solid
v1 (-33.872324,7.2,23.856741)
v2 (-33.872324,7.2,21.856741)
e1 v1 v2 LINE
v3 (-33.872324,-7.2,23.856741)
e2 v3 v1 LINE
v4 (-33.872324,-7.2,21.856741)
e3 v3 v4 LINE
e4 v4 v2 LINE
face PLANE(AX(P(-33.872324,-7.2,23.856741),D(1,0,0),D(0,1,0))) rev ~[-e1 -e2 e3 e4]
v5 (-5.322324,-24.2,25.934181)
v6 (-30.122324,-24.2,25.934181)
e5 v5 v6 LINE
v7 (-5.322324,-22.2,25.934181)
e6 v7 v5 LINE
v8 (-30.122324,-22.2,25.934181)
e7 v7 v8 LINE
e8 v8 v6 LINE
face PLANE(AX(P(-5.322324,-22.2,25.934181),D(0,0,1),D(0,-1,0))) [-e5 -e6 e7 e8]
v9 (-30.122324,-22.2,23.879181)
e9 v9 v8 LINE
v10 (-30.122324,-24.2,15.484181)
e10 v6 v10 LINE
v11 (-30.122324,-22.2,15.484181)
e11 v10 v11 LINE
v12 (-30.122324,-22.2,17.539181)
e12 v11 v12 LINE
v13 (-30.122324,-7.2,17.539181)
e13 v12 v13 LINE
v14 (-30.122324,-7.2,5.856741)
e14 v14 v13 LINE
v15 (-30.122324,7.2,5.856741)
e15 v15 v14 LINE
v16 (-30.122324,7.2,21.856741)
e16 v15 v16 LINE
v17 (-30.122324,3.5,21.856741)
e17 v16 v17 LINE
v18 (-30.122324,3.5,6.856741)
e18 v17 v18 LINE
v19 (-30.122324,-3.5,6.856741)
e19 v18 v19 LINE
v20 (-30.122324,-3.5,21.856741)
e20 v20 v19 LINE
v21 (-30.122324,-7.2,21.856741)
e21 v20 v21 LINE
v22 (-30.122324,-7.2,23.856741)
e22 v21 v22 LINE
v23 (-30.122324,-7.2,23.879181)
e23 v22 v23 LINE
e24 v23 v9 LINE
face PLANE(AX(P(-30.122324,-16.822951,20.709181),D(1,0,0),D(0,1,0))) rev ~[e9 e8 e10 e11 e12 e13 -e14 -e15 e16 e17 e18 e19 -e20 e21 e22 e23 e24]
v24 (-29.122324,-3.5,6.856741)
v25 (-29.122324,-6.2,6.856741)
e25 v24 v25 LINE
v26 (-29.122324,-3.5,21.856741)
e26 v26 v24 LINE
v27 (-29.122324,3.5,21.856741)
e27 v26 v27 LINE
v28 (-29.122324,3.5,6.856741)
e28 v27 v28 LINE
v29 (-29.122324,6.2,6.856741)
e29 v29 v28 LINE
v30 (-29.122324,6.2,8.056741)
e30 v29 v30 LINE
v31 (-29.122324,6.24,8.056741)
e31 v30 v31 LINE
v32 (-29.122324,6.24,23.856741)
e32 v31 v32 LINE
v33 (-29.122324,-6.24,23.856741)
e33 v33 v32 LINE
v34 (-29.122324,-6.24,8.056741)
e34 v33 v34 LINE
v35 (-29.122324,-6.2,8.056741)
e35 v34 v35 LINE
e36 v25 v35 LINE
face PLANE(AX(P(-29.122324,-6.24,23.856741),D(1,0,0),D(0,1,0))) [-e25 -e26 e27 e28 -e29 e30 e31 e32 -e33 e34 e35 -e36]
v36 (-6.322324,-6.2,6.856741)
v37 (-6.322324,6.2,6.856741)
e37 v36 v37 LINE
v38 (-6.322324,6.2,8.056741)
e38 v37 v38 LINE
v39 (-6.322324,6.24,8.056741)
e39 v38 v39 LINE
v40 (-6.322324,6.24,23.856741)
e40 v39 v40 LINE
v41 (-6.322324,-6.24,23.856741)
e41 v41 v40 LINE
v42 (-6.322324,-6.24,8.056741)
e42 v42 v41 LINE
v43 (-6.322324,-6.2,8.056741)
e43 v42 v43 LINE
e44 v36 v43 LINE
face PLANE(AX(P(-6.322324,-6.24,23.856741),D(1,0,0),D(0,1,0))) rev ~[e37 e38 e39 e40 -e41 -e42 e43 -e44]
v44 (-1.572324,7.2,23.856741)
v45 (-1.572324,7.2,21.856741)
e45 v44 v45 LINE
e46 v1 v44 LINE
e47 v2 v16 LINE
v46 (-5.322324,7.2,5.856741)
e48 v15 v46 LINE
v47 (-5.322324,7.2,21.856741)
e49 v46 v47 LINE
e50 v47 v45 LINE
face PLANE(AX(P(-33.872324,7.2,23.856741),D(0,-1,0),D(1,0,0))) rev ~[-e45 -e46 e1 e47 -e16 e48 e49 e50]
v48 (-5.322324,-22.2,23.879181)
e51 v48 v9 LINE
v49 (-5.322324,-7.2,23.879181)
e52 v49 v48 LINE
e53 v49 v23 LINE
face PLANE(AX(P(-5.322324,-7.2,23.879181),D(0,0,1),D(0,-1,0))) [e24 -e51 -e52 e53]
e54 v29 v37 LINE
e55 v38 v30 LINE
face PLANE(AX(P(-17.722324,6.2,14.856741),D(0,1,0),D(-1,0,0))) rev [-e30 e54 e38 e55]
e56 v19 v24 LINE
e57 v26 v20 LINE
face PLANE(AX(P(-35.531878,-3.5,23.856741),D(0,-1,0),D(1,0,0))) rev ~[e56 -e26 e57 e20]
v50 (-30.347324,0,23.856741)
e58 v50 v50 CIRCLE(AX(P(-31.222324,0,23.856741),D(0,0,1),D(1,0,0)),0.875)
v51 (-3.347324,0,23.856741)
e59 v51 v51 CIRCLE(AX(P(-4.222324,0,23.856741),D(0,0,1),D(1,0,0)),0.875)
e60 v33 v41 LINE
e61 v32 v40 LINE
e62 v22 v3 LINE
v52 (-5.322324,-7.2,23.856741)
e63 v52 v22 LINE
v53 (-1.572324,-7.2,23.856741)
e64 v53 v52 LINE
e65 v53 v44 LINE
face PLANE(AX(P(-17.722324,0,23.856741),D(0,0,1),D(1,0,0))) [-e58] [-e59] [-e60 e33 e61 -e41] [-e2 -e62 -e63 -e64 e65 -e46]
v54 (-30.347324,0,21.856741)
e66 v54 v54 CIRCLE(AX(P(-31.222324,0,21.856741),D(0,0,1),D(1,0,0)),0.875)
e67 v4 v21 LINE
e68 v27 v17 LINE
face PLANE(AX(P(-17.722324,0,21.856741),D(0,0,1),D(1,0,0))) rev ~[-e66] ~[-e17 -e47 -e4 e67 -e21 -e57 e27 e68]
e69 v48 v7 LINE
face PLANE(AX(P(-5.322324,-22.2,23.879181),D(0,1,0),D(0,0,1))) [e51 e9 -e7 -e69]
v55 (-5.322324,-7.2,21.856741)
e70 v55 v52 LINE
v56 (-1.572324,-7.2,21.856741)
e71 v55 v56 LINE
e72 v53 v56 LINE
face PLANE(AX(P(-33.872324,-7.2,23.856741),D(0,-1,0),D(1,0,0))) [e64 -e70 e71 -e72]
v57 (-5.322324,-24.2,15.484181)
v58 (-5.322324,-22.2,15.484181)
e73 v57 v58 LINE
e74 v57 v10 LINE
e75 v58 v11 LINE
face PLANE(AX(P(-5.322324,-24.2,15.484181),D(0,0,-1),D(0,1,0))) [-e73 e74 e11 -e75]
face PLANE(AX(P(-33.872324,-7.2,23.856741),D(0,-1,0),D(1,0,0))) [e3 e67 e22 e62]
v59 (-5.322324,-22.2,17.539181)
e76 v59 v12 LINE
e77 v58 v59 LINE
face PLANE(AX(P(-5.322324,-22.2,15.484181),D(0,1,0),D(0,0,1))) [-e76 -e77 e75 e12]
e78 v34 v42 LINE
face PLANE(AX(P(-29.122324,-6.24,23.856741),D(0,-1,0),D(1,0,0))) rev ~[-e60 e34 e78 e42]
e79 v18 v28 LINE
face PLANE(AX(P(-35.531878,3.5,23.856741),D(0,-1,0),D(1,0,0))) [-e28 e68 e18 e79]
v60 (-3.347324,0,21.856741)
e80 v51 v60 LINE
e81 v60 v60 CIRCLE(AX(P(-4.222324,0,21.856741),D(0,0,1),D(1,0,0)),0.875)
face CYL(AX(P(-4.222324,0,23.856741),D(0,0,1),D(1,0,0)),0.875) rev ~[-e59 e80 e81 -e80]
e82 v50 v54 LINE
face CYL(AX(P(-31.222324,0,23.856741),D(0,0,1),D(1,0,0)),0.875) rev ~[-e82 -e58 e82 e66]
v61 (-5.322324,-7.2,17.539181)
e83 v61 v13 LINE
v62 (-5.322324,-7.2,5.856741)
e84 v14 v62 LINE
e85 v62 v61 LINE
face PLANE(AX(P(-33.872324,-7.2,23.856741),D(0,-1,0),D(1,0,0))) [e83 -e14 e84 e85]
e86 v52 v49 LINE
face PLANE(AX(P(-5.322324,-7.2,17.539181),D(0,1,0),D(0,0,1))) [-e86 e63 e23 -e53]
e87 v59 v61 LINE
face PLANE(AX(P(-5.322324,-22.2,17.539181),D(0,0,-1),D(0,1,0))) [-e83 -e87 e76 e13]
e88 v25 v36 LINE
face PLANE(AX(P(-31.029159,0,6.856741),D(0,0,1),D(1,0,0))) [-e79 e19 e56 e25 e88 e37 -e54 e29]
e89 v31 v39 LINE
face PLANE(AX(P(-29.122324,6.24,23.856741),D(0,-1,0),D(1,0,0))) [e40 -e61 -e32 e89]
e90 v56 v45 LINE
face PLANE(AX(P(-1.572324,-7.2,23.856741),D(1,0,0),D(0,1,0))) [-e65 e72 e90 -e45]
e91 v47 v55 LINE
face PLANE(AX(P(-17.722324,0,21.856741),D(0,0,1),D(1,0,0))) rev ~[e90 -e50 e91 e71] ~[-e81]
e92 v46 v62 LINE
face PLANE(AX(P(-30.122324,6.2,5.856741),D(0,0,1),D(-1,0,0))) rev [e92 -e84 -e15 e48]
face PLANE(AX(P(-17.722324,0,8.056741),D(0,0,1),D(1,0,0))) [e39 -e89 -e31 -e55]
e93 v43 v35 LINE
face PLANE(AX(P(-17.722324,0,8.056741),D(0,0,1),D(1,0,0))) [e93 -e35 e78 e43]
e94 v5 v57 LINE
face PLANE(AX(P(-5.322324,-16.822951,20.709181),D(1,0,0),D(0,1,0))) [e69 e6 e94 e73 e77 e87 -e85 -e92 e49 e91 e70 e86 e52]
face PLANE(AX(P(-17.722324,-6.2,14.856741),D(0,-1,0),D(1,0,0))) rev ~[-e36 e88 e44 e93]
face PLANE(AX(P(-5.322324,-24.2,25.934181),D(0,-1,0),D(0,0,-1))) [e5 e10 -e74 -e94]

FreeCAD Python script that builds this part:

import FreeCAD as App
import Part
import Sketcher
Q = App.Units.Quantity

doc = App.newDocument("Part")
body = doc.addObject("PartDesign::Body", "Body")

# Sketch on XZ plane
sketch1 = body.newObject("Sketcher::SketchObject", "Sketch")
sketch1.AttachmentSupport = (doc.getObject("XZ_Plane"), [""])
sketch1.MapMode = "FlatFace"
sketch1.addGeometry([
    Part.LineSegment(App.Vector(-30, 24, 0), App.Vector(-30, 6, 0)),  # 0
    Part.LineSegment(App.Vector(-30, 6, 0), App.Vector(-5, 6, 0)),  # 1
    Part.LineSegment(App.Vector(-5, 6, 0), App.Vector(-5, 24, 0)),  # 2
    Part.LineSegment(App.Vector(-5, 24, 0), App.Vector(-30, 24, 0)),  # 3
    Part.LineSegment(App.Vector(-6, 7, 0), App.Vector(-29, 7, 0)),  # 4
    Part.LineSegment(App.Vector(-29, 7, 0), App.Vector(-29, 23, 0)),  # 5
    Part.LineSegment(App.Vector(-29, 23, 0), App.Vector(-6, 23, 0)),  # 6
    Part.LineSegment(App.Vector(-6, 23, 0), App.Vector(-6, 7, 0)),  # 7
], False)
sketch1.addConstraint([
    Sketcher.Constraint("Coincident", 0, 2, 1, 1),
    Sketcher.Constraint("Coincident", 1, 2, 2, 1),
    Sketcher.Constraint("Coincident", 2, 2, 3, 1),
    Sketcher.Constraint("Coincident", 3, 2, 0, 1),
    Sketcher.Constraint("Coincident", 4, 2, 5, 1),
    Sketcher.Constraint("Coincident", 5, 2, 6, 1),
    Sketcher.Constraint("Coincident", 6, 2, 7, 1),
    Sketcher.Constraint("Coincident", 7, 2, 4, 1),
    Sketcher.Constraint("Vertical", 0),
    Sketcher.Constraint("Horizontal", 1),
    Sketcher.Constraint("Vertical", 2),
    Sketcher.Constraint("Horizontal", 3),
    Sketcher.Constraint("Horizontal", 4),
    Sketcher.Constraint("Vertical", 5),
    Sketcher.Constraint("Horizontal", 6),
    Sketcher.Constraint("Vertical", 7),
    Sketcher.Constraint("DistanceY", 0, 2, 0, 1, Q("18 mm")),
    Sketcher.Constraint("DistanceY", 5, 1, 5, 2, Q("16 mm")),
    Sketcher.Constraint("DistanceX", 1, 1, 1, 2, Q("24.8 mm")),
    Sketcher.Constraint("DistanceX", 4, 2, 4, 1, Q("22.8 mm")),
    Sketcher.Constraint("DistanceX", 0, 2, 4, 2, Q("1 mm")),
    Sketcher.Constraint("DistanceY", 0, 2, 4, 2, Q("1 mm")),
    Sketcher.Constraint("DistanceY", -1, 1, 0, 2, Q("5.856741 mm")),
    Sketcher.Constraint("DistanceX", 0, 2, -1, 1, Q("30.122324 mm")),
])
pad1 = body.newObject("PartDesign::Pad", "Pad")
pad1.Profile = sketch1
pad1.Type = "TwoLengths"
pad1.Length = 6.2
pad1.Length2 = 6.2

# Sketch on XZ plane
sketch2 = body.newObject("Sketcher::SketchObject", "Sketch001")
sketch2.AttachmentSupport = (doc.getObject("XZ_Plane"), [""])
sketch2.MapMode = "FlatFace"
sketch2.AttachmentOffset = App.Placement(App.Vector(0, 0, 6.2), App.Rotation())
sketch2.addGeometry([
    Part.LineSegment(App.Vector(-30, 24, 0), App.Vector(-30, 6, 0)),
    Part.LineSegment(App.Vector(-30, 6, 0), App.Vector(-5, 6, 0)),
    Part.LineSegment(App.Vector(-5, 6, 0), App.Vector(-5, 24, 0)),
    Part.LineSegment(App.Vector(-5, 24, 0), App.Vector(-30, 24, 0)),
], False)
sketch2.addConstraint([
    Sketcher.Constraint("Coincident", 0, 2, 1, 1),
    Sketcher.Constraint("Coincident", 1, 2, 2, 1),
    Sketcher.Constraint("Coincident", 2, 2, 3, 1),
    Sketcher.Constraint("Coincident", 3, 2, 0, 1),
    Sketcher.Constraint("Vertical", 0),
    Sketcher.Constraint("Horizontal", 1),
    Sketcher.Constraint("Vertical", 2),
    Sketcher.Constraint("Horizontal", 3),
    Sketcher.Constraint("DistanceY", 0, 2, 0, 1, Q("18 mm")),
    Sketcher.Constraint("DistanceX", 1, 1, 1, 2, Q("24.8 mm")),
    Sketcher.Constraint("DistanceY", -1, 1, 0, 2, Q("5.856741 mm")),
    Sketcher.Constraint("DistanceX", 0, 2, -1, 1, Q("30.122324 mm")),
])
pad2 = body.newObject("PartDesign::Pad", "Pad001")
pad2.Profile = sketch2
pad2.Length = 1
body2 = doc.addObject("PartDesign::Body", "Body001")
doc.recompute()

body2.BaseFeature = body
doc.recompute()

mirroring = doc.addObject("Part::Mirroring", "Mirroring")
mirroring.Source = body
mirroring.Base = App.Vector(0, 0, 0)
mirroring.Normal = App.Vector(0, -1, 0)
body3 = doc.addObject("PartDesign::Body", "Body002")
body3.BaseFeature = mirroring
boolean = body2.newObject("PartDesign::Boolean", "Boolean")
boolean.Type = "Fuse"
boolean.addObjects([body3])
doc.recompute()

# Sketch on XY plane
sketch3 = body2.newObject("Sketcher::SketchObject", "Sketch002")
sketch3.AttachmentSupport = (doc.getObject("XY_Plane001"), [""])
sketch3.MapMode = "FlatFace"
sketch3.AttachmentOffset = App.Placement(App.Vector(0, 0, 23.856741), App.Rotation())
sketch3.addGeometry([
    Part.LineSegment(App.Vector(-29, 6, 0), App.Vector(-29, -6, 0)),
    Part.LineSegment(App.Vector(-29, -6, 0), App.Vector(-6, -6, 0)),
    Part.LineSegment(App.Vector(-6, -6, 0), App.Vector(-6, 6, 0)),
    Part.LineSegment(App.Vector(-6, 6, 0), App.Vector(-29, 6, 0)),
], False)
sketch3.addConstraint([
    Sketcher.Constraint("Coincident", 0, 2, 1, 1),
    Sketcher.Constraint("Coincident", 1, 2, 2, 1),
    Sketcher.Constraint("Coincident", 2, 2, 3, 1),
    Sketcher.Constraint("Coincident", 3, 2, 0, 1),
    Sketcher.Constraint("Vertical", 0),
    Sketcher.Constraint("Horizontal", 1),
    Sketcher.Constraint("Vertical", 2),
    Sketcher.Constraint("Horizontal", 3),
    Sketcher.Constraint("DistanceX", 1, 1, 1, 2, Q("22.8 mm")),
    Sketcher.Constraint("DistanceY", 0, 2, 0, 1, Q("12.48 mm")),
    Sketcher.Constraint("DistanceY", 0, 2, -1, 1, Q("6.24 mm")),
    Sketcher.Constraint("DistanceX", 0, 2, -1, 1, Q("29.122324 mm")),
])
pocket1 = body2.newObject("PartDesign::Pocket", "Pocket")
pocket1.Profile = sketch3
pocket1.Length = 15.8

# Sketch on XY plane
sketch4 = body2.newObject("Sketcher::SketchObject", "Sketch003")
sketch4.AttachmentSupport = (doc.getObject("XY_Plane001"), [""])
sketch4.MapMode = "FlatFace"
sketch4.AttachmentOffset = App.Placement(App.Vector(0, 0, 23.856741), App.Rotation())
sketch4.addGeometry([
    Part.LineSegment(App.Vector(-36, 4, 0), App.Vector(-36, -4, 0)),
    Part.LineSegment(App.Vector(-36, -4, 0), App.Vector(-27, -4, 0)),
    Part.LineSegment(App.Vector(-27, -4, 0), App.Vector(-27, 4, 0)),
    Part.LineSegment(App.Vector(-27, 4, 0), App.Vector(-36, 4, 0)),
], False)
sketch4.addConstraint([
    Sketcher.Constraint("Coincident", 0, 2, 1, 1),
    Sketcher.Constraint("Coincident", 1, 2, 2, 1),
    Sketcher.Constraint("Coincident", 2, 2, 3, 1),
    Sketcher.Constraint("Coincident", 3, 2, 0, 1),
    Sketcher.Constraint("Vertical", 0),
    Sketcher.Constraint("Horizontal", 1),
    Sketcher.Constraint("Vertical", 2),
    Sketcher.Constraint("Horizontal", 3),
    Sketcher.Constraint("DistanceY", 0, 2, 0, 1, Q("7 mm")),
    Sketcher.Constraint("DistanceY", 0, 2, -1, 1, Q("3.5 mm")),
    Sketcher.Constraint("DistanceX", 1, 1, 1, 2, Q("9.005438 mm")),
    Sketcher.Constraint("DistanceX", 1, 2, -1, 1, Q("26.52644 mm")),
])
pocket2 = body2.newObject("PartDesign::Pocket", "Pocket001")
pocket2.Profile = sketch4
pocket2.Length = 17

# Sketch on XY plane
sketch5 = body2.newObject("Sketcher::SketchObject", "Sketch004")
sketch5.AttachmentSupport = (doc.getObject("XY_Plane001"), [""])
sketch5.MapMode = "FlatFace"
sketch5.AttachmentOffset = App.Placement(App.Vector(0, 0, 23.856741), App.Rotation())
sketch5.addGeometry([
    Part.LineSegment(App.Vector(-34, 7, 0), App.Vector(-34, -7, 0)),  # 0
    Part.LineSegment(App.Vector(-34, -7, 0), App.Vector(-2, -7, 0)),  # 1
    Part.LineSegment(App.Vector(-2, -7, 0), App.Vector(-2, 7, 0)),  # 2
    Part.LineSegment(App.Vector(-2, 7, 0), App.Vector(-34, 7, 0)),  # 3
    Part.LineSegment(App.Vector(-6, -6, 0), App.Vector(-29, -6, 0)),  # 4
    Part.LineSegment(App.Vector(-29, -6, 0), App.Vector(-29, 6, 0)),  # 5
    Part.LineSegment(App.Vector(-29, 6, 0), App.Vector(-6, 6, 0)),  # 6
    Part.LineSegment(App.Vector(-6, 6, 0), App.Vector(-6, -6, 0)),  # 7
], False)
sketch5.addConstraint([
    Sketcher.Constraint("Coincident", 0, 2, 1, 1),
    Sketcher.Constraint("Coincident", 1, 2, 2, 1),
    Sketcher.Constraint("Coincident", 2, 2, 3, 1),
    Sketcher.Constraint("Coincident", 3, 2, 0, 1),
    Sketcher.Constraint("Coincident", 4, 2, 5, 1),
    Sketcher.Constraint("Coincident", 5, 2, 6, 1),
    Sketcher.Constraint("Coincident", 6, 2, 7, 1),
    Sketcher.Constraint("Coincident", 7, 2, 4, 1),
    Sketcher.Constraint("Vertical", 0),
    Sketcher.Constraint("Horizontal", 1),
    Sketcher.Constraint("Vertical", 2),
    Sketcher.Constraint("Horizontal", 3),
    Sketcher.Constraint("Horizontal", 4),
    Sketcher.Constraint("Vertical", 5),
    Sketcher.Constraint("Horizontal", 6),
    Sketcher.Constraint("Vertical", 7),
    Sketcher.Constraint("DistanceX", 1, 1, 1, 2, Q("32.3 mm")),
    Sketcher.Constraint("DistanceX", 4, 2, 4, 1, Q("22.8 mm")),
    Sketcher.Constraint("DistanceY", 0, 2, 0, 1, Q("14.4 mm")),
    Sketcher.Constraint("DistanceY", 5, 1, 5, 2, Q("12.48 mm")),
    Sketcher.Constraint("DistanceY", 0, 2, -1, 1, Q("7.2 mm")),
    Sketcher.Constraint("DistanceY", 4, 2, -1, 1, Q("6.24 mm")),
    Sketcher.Constraint("DistanceX", 0, 2, 4, 2, Q("4.75 mm")),
    Sketcher.Constraint("DistanceX", 0, 2, -1, 1, Q("33.872324 mm")),
])
pad3 = body2.newObject("PartDesign::Pad", "Pad002")
pad3.Profile = sketch5
pad3.Length = 2
pad3.Reversed = True

# Sketch on XY plane
sketch6 = body2.newObject("Sketcher::SketchObject", "Sketch005")
sketch6.AttachmentSupport = (doc.getObject("XY_Plane001"), [""])
sketch6.MapMode = "FlatFace"
sketch6.AttachmentOffset = App.Placement(App.Vector(0, 0, 23.856741), App.Rotation())
sketch6.addGeometry([
    Part.Circle(App.Vector(-31.2, 0, 0), App.Vector(0, 0, 1), 0.9),
    Part.Circle(App.Vector(-4.2, 0, 0), App.Vector(0, 0, 1), 0.9),
], False)
sketch6.addConstraint([
    Sketcher.Constraint("Equal", 0, 1),
    Sketcher.Constraint("PointOnObject", 0, 3, -1),
    Sketcher.Constraint("PointOnObject", 1, 3, -1),
    Sketcher.Constraint("Diameter", 0, Q("1.75 mm")),
    Sketcher.Constraint("DistanceX", 0, 3, 1, 3, Q("27 mm")),
    Sketcher.Constraint("DistanceX", 0, 3, -1, 1, Q("31.222324 mm")),
])
pocket3 = body2.newObject("PartDesign::Pocket", "Pocket002")
pocket3.Profile = sketch6
pocket3.Length = 25

# Sketch on YZ plane
sketch7 = body2.newObject("Sketcher::SketchObject", "Sketch006")
sketch7.AttachmentSupport = (doc.getObject("YZ_Plane001"), [""])
sketch7.MapMode = "FlatFace"
sketch7.AttachmentOffset = App.Placement(App.Vector(0, 0, -5.322324), App.Rotation())
sketch7.addGeometry([
    Part.LineSegment(App.Vector(-7.2, 23.9, 0), App.Vector(-22.2, 23.9, 0)),  # 0
    Part.LineSegment(App.Vector(-22.2, 23.9, 0), App.Vector(-22.2, 25.9, 0)),  # 1
    Part.LineSegment(App.Vector(-22.2, 25.9, 0), App.Vector(-24.2, 25.9, 0)),  # 2
    Part.LineSegment(App.Vector(-24.2, 25.9, 0), App.Vector(-24.2, 15.5, 0)),  # 3
    Part.LineSegment(App.Vector(-24.2, 15.5, 0), App.Vector(-22.2, 15.5, 0)),  # 4
    Part.LineSegment(App.Vector(-22.2, 15.5, 0), App.Vector(-22.2, 17.5, 0)),  # 5
    Part.LineSegment(App.Vector(-22.2, 17.5, 0), App.Vector(-7.2, 17.5, 0)),  # 6
    Part.LineSegment(App.Vector(-7.2, 17.5, 0), App.Vector(-7.2, 23.9, 0)),  # 7
], False)
sketch7.addConstraint([
    Sketcher.Constraint("Coincident", 0, 2, 1, 1),
    Sketcher.Constraint("Coincident", 1, 2, 2, 1),
    Sketcher.Constraint("Coincident", 2, 2, 3, 1),
    Sketcher.Constraint("Coincident", 3, 2, 4, 1),
    Sketcher.Constraint("Coincident", 4, 2, 5, 1),
    Sketcher.Constraint("Coincident", 5, 2, 6, 1),
    Sketcher.Constraint("Coincident", 6, 2, 7, 1),
    Sketcher.Constraint("Coincident", 7, 2, 0, 1),
    Sketcher.Constraint("Horizontal", 0),
    Sketcher.Constraint("Vertical", 1),
    Sketcher.Constraint("Horizontal", 2),
    Sketcher.Constraint("Vertical", 3),
    Sketcher.Constraint("Horizontal", 4),
    Sketcher.Constraint("Vertical", 5),
    Sketcher.Constraint("Horizontal", 6),
    Sketcher.Constraint("Vertical", 7),
    Sketcher.Constraint("Vertical", 1, 2, 4, 2),
    Sketcher.Constraint("Equal", 1, 5),
    Sketcher.Constraint("DistanceX", 0, 2, 0, 1, Q("15 mm")),
    Sketcher.Constraint("DistanceX", 2, 2, 2, 1, Q("2 mm")),
    Sketcher.Constraint("DistanceY", 3, 2, 3, 1, Q("10.45 mm")),
    Sketcher.Constraint("DistanceY", 7, 1, 7, 2, Q("6.34 mm")),
    Sketcher.Constraint("DistanceX", 0, 2, -1, 1, Q("22.2 mm")),
    Sketcher.Constraint("DistanceY", -1, 1, 0, 2, Q("23.879181 mm")),
])
pad4 = body2.newObject("PartDesign::Pad", "Pad003")
pad4.Profile = sketch7
pad4.Length = 24.8
pad4.Reversed = True
mirroring.Visibility = False

doc.recompute()
